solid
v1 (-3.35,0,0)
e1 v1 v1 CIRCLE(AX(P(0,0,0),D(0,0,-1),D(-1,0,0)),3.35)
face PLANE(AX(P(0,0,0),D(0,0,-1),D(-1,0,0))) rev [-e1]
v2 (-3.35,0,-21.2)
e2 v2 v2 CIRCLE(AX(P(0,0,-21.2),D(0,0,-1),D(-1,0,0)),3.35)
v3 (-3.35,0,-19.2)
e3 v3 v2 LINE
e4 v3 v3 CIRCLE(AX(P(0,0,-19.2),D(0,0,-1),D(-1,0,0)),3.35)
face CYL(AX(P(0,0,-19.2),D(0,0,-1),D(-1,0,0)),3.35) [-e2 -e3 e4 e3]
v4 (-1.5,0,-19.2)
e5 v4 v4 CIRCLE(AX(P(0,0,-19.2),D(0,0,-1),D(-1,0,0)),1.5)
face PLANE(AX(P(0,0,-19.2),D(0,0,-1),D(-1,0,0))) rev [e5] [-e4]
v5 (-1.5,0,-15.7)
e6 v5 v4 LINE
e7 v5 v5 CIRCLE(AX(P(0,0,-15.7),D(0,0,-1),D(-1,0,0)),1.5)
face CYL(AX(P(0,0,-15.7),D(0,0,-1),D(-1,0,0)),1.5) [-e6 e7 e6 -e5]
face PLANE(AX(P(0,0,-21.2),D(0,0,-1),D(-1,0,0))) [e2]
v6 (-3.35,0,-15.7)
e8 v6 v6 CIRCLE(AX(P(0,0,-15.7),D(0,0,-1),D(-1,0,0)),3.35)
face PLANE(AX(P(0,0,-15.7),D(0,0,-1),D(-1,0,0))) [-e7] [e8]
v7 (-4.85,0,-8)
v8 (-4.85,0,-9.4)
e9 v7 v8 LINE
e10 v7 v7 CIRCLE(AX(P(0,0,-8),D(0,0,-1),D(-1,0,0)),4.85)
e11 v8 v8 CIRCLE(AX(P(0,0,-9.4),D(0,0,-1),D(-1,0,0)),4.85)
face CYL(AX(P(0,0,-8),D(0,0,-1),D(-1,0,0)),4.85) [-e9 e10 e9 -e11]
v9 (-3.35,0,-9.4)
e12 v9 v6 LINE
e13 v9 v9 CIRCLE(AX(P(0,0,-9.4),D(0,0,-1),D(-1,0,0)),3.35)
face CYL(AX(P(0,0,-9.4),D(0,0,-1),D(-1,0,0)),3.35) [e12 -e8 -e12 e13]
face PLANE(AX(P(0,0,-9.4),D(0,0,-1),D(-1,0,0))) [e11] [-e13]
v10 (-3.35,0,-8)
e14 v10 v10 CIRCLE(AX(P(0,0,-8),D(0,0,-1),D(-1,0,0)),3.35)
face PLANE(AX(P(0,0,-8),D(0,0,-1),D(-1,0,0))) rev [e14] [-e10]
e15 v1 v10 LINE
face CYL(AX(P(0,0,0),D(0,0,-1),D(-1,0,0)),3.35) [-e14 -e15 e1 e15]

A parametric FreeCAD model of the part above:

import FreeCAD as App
import Part
import Sketcher
Q = App.Units.Quantity


def add_polygon(sketch, points):
    """Adds a closed chain of lines whose ends are joined by coincident constraints."""
    first, n = sketch.GeometryCount, len(points)
    for a, b in zip(points, points[1:] + points[:1]):
        sketch.addGeometry(Part.LineSegment(App.Vector(*a, 0), App.Vector(*b, 0)), False)
    for i in range(n):
        sketch.addConstraint(Sketcher.Constraint("Coincident", first + i, 2, first + (i + 1) % n, 1))

doc = App.newDocument("Part")
body = doc.addObject("PartDesign::Body", "Body")

sketch1 = body.newObject("Sketcher::SketchObject", "Sketch")
sketch1.AttachmentSupport = (doc.getObject("XZ_Plane"), [""])
sketch1.MapMode = "FlatFace"
add_polygon(sketch1, [(-3.4, 0), (0, 0), (0, -21.2), (-3.4, -21.2), (-3.4, -19.2), (-1.5, -19.2), (-1.5, -15.7), (-3.4, -15.7), (-3.4, -9.4), (-4.8, -9.4), (-4.8, -8), (-3.4, -8)])
sketch1.addConstraint([
    Sketcher.Constraint("Horizontal", 0),
    Sketcher.Constraint("Vertical", 1),
    Sketcher.Constraint("Horizontal", 2),
    Sketcher.Constraint("Vertical", 3),
    Sketcher.Constraint("Horizontal", 4),
    Sketcher.Constraint("Vertical", 5),
    Sketcher.Constraint("Horizontal", 6),
    Sketcher.Constraint("Vertical", 7),
    Sketcher.Constraint("Horizontal", 8),
    Sketcher.Constraint("Vertical", 9),
    Sketcher.Constraint("Horizontal", 10),
    Sketcher.Constraint("Vertical", 11),
    Sketcher.Constraint("Coincident", 0, 2, -1, 1),
    Sketcher.Constraint("Vertical", 3, 2, 6, 2),
    Sketcher.Constraint("Vertical", 7, 2, 10, 2),
    Sketcher.Constraint("DistanceY", 3, 1, 3, 2, Q("2 mm")),
    Sketcher.Constraint("DistanceY", 11, 1, 11, 2, Q("8 mm")),
    Sketcher.Constraint("DistanceX", 8, 2, 8, 1, Q("1.5 mm")),
    Sketcher.Constraint("DistanceY", 1, 2, 1, 1, Q("21.2 mm")),
    Sketcher.Constraint("DistanceX", 0, 1, 0, 2, Q("3.35 mm")),
    Sketcher.Constraint("DistanceX", 4, 2, -1, 1, Q("1.5 mm")),
    Sketcher.Constraint("DistanceY", 1, 2, 5, 2, Q("5.5 mm")),
    Sketcher.Constraint("DistanceY", 7, 1, 7, 2, Q("6.3 mm")),
])
revolution = body.newObject("PartDesign::Revolution", "Revolution")
revolution.Profile = sketch1
revolution.ReferenceAxis = (sketch1, ["V_Axis"])
revolution.Angle = 360

doc.recompute()
